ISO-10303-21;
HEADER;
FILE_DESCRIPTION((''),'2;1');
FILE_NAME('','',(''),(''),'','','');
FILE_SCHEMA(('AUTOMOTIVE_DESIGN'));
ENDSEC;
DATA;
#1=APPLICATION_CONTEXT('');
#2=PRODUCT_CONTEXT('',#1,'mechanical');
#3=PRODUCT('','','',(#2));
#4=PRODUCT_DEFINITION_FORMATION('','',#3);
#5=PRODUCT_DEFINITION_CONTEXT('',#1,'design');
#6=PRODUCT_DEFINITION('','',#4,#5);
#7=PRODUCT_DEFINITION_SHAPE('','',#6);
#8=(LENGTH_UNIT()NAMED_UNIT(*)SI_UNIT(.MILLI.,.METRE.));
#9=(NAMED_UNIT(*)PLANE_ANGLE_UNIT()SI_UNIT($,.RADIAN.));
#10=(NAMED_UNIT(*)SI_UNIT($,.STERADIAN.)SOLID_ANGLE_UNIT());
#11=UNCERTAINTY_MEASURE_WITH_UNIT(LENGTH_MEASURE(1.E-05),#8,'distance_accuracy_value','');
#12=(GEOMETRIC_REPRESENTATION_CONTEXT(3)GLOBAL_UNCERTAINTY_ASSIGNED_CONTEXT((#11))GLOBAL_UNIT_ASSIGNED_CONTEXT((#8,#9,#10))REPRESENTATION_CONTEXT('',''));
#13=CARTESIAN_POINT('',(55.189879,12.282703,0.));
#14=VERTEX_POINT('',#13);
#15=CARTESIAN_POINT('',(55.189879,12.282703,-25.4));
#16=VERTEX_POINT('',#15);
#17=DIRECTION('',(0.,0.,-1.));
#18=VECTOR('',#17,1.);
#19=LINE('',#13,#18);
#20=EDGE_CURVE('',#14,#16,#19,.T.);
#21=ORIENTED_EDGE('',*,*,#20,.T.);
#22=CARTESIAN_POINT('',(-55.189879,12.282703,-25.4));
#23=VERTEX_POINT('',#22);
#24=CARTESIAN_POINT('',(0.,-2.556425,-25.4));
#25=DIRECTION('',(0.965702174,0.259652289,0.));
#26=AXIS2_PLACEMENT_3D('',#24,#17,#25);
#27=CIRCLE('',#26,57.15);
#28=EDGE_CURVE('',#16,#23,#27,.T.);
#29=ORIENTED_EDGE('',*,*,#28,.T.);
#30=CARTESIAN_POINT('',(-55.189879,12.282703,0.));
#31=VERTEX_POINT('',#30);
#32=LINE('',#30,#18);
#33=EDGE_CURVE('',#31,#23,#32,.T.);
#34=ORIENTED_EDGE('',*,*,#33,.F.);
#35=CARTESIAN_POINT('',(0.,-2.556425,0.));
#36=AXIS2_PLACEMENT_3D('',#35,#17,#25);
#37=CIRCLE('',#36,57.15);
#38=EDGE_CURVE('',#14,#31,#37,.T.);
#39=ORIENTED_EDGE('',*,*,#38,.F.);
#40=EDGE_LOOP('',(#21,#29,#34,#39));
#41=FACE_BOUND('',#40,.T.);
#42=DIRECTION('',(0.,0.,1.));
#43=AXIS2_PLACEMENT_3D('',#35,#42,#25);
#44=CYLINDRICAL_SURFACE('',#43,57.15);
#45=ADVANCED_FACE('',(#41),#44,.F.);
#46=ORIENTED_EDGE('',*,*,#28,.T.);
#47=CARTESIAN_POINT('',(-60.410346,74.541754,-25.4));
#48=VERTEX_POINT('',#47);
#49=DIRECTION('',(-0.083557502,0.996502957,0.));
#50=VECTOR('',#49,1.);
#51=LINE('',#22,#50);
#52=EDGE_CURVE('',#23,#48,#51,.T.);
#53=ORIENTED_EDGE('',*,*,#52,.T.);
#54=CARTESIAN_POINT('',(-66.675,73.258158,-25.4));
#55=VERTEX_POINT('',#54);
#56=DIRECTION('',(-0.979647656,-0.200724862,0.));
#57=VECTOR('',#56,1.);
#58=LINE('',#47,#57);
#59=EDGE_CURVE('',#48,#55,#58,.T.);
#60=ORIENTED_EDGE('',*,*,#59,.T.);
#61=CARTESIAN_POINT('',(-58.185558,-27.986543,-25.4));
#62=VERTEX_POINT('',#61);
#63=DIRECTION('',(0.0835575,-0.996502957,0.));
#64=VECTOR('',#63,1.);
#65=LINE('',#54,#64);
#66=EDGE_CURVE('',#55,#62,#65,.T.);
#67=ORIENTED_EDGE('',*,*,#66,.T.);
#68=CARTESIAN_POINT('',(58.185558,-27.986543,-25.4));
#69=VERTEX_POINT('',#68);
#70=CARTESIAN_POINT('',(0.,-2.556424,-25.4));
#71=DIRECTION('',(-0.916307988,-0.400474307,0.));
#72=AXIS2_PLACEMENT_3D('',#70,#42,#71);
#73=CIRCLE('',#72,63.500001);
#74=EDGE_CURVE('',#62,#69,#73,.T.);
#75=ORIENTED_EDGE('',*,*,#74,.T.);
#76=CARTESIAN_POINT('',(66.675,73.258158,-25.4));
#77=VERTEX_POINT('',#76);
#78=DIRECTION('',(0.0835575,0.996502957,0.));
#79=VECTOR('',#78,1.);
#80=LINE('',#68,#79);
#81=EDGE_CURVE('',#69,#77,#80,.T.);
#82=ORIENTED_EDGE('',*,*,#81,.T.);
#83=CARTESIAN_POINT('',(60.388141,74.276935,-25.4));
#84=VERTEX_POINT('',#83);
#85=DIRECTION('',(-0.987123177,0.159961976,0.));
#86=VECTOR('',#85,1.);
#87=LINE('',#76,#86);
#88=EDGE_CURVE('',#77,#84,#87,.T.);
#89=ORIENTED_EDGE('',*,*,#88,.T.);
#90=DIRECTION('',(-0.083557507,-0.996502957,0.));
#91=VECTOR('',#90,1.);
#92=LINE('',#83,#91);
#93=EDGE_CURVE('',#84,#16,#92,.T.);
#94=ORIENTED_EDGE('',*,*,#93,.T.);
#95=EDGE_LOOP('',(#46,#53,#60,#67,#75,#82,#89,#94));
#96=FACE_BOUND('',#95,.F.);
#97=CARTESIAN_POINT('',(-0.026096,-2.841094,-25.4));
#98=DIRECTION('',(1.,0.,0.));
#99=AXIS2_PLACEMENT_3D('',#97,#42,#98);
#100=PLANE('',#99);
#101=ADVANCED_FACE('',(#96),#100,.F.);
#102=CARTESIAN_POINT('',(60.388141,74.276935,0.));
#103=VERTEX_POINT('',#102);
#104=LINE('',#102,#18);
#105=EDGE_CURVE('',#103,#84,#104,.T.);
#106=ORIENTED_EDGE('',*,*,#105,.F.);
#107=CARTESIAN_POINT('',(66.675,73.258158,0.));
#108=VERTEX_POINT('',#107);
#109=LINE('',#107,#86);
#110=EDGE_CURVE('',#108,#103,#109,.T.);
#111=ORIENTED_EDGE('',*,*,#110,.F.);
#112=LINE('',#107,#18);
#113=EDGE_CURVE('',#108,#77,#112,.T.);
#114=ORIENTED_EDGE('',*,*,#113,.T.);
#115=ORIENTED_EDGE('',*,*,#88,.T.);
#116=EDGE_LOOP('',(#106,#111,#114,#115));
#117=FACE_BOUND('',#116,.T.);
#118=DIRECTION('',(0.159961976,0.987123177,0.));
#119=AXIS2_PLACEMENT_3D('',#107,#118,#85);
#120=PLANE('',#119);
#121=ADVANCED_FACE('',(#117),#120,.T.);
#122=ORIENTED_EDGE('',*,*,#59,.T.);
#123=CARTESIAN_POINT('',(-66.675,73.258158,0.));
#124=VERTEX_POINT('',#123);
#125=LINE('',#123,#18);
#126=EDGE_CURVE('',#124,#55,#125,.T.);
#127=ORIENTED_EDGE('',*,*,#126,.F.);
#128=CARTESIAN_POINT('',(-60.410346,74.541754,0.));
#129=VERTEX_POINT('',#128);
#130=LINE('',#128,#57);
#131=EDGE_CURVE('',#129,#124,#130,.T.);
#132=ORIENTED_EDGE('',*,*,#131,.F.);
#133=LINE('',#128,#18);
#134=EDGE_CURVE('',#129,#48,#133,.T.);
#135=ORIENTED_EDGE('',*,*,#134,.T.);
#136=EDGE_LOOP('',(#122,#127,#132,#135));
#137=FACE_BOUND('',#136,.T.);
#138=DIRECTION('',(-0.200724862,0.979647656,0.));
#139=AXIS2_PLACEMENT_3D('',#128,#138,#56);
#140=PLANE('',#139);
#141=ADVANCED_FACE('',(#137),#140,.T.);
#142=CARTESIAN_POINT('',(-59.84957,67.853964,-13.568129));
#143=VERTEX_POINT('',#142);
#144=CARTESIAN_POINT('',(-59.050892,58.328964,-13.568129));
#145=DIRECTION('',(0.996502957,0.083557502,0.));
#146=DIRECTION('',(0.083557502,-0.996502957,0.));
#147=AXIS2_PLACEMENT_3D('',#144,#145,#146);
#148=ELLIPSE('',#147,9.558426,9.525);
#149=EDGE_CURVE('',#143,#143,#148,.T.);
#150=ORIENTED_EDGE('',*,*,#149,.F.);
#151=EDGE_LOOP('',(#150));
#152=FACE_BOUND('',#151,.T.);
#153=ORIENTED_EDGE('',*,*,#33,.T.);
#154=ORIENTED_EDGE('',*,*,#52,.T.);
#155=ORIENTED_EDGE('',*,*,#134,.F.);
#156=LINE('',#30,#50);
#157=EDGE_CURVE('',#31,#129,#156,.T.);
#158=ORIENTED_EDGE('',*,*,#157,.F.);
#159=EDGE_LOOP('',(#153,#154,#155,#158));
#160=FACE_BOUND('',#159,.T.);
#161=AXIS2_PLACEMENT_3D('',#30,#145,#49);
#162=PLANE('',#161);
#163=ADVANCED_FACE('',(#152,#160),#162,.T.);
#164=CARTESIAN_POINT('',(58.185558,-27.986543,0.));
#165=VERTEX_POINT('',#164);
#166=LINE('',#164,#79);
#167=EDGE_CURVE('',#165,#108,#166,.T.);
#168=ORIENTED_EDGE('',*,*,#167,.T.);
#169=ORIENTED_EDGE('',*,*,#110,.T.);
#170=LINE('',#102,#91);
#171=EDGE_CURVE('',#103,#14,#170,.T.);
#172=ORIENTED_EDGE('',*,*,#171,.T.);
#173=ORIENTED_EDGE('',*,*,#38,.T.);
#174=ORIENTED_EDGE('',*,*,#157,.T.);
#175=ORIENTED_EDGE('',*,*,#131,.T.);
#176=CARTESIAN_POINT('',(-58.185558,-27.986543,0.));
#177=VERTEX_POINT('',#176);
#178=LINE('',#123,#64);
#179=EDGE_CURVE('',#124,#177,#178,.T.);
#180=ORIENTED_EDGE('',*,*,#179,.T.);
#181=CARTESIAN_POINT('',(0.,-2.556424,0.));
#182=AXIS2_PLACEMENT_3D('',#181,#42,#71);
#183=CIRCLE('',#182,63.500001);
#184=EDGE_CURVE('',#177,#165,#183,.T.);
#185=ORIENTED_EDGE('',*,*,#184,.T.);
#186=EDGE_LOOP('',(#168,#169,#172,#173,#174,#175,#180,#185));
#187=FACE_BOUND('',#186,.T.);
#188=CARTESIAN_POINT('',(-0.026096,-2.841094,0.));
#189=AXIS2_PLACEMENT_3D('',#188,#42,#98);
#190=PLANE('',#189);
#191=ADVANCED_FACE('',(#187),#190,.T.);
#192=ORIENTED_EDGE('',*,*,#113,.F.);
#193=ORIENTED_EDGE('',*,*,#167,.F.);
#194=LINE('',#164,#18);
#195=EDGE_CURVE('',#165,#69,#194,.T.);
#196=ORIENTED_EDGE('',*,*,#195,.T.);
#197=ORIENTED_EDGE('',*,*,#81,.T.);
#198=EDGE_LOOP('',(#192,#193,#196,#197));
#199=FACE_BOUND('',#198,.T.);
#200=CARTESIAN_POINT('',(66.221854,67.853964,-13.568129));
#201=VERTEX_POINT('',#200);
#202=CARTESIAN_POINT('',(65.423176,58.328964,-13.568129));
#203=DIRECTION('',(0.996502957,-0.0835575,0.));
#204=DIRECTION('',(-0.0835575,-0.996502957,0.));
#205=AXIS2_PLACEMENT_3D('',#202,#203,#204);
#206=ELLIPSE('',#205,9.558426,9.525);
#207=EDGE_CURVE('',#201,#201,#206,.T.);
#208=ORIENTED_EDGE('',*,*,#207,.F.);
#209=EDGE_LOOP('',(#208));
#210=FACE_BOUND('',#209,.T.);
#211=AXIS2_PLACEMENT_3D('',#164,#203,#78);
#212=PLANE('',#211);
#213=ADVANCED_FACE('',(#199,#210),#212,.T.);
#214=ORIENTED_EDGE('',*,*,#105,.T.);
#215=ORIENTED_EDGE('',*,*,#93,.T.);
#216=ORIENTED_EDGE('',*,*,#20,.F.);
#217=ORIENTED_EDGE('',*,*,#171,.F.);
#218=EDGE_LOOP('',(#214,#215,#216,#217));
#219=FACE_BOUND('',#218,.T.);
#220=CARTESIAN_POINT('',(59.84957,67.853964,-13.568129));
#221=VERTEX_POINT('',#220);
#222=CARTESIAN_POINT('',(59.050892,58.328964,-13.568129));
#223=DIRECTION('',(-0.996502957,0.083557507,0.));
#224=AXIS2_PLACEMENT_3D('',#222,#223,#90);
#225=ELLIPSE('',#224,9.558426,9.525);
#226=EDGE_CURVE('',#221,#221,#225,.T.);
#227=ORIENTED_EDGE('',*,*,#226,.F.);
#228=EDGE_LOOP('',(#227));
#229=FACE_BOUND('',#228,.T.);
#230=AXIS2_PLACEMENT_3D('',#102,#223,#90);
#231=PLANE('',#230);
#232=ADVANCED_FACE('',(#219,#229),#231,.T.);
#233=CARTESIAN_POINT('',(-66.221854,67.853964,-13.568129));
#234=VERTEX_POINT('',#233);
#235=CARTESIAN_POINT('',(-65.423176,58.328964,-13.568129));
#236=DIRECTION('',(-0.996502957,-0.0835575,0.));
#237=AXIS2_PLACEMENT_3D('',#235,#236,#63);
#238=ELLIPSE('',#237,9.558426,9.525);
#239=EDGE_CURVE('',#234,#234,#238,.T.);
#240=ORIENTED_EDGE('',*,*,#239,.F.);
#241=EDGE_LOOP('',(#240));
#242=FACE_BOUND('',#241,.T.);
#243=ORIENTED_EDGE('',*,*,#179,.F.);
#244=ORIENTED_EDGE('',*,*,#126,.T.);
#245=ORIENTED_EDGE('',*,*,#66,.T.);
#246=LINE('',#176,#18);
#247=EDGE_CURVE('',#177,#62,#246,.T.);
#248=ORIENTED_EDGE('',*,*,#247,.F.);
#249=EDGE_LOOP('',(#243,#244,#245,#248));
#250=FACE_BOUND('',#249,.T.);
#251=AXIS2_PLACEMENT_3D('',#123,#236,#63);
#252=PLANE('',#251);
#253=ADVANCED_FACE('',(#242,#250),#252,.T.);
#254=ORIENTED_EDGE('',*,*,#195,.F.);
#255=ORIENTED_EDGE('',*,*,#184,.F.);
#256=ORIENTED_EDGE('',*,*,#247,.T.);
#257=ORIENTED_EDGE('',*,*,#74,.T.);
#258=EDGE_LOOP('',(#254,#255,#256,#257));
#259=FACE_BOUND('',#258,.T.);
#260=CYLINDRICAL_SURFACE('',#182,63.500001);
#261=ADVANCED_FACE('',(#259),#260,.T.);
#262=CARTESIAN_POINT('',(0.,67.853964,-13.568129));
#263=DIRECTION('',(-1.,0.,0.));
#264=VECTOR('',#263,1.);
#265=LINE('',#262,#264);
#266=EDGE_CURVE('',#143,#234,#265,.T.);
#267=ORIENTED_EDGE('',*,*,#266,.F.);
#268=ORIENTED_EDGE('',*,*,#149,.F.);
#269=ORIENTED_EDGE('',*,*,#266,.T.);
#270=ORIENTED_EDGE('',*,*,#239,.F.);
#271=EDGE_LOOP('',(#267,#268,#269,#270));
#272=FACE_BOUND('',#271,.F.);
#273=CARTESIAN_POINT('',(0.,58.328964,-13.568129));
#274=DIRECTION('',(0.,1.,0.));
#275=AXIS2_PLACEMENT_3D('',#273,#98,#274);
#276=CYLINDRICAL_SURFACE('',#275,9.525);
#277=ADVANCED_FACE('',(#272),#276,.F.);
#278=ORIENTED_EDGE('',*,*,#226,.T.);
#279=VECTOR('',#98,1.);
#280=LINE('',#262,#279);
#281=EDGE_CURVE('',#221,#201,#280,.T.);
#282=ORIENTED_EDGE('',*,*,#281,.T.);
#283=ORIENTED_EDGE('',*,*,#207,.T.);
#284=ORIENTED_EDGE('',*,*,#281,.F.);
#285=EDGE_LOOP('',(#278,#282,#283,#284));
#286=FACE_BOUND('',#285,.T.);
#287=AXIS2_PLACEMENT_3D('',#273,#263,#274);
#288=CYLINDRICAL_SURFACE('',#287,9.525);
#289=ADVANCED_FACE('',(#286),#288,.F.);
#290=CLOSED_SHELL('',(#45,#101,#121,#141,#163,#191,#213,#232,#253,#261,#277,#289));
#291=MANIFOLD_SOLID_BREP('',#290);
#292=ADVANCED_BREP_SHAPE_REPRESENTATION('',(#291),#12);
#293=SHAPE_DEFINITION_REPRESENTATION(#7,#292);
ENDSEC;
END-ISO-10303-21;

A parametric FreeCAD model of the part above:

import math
import FreeCAD as App
import Part
import Sketcher
Q = App.Units.Quantity

doc = App.newDocument("Part")
params = doc.addObject("Spreadsheet::Sheet", "Params")
for row, (alias, value) in enumerate([
    ("sketch1_radius", "2.5 in"),
    ("sketch1_radius2", "2.25 in"),
    ("sketch1_length", "4 in"),
    ("pad1_length", "1 in"),
    ("sketch2_diameter", "0.75 in"),
    ("sketch3_diameter", "0.75 in"),
], start=1):
    params.set(f"A{row}", alias)
    params.set(f"B{row}", "=" + value)
    params.setAlias(f"B{row}", alias)

body = doc.addObject("PartDesign::Body", "Body")

sketch1 = body.newObject("Sketcher::SketchObject", "Sketch")
sketch1.AttachmentSupport = (doc.getObject("XY_Plane"), [""])
sketch1.MapMode = "FlatFace"
sketch1.addGeometry(Part.LineSegment(App.Vector(-60, 75, 0), App.Vector(-67, 73, 0)), False)
sketch1.addGeometry(Part.LineSegment(App.Vector(-67, 73, 0), App.Vector(-58, -28, 0)), False)
sketch1.addGeometry(Part.ArcOfCircle(Part.Circle(App.Vector(0, -3, 0), App.Vector(0, 0, 1), 64), math.radians(-156), math.radians(-24)), False)
sketch1.addGeometry(Part.LineSegment(App.Vector(58, -28, 0), App.Vector(67, 73, 0)), False)
sketch1.addGeometry(Part.LineSegment(App.Vector(67, 73, 0), App.Vector(60, 74, 0)), False)
sketch1.addGeometry(Part.LineSegment(App.Vector(60, 74, 0), App.Vector(55, 12, 0)), False)
sketch1.addGeometry(Part.ArcOfCircle(Part.Circle(App.Vector(0, -3, 0), App.Vector(0, 0, 1), 57), math.radians(165), math.radians(375)), False)
sketch1.addGeometry(Part.LineSegment(App.Vector(-55, 12, 0), App.Vector(-60, 75, 0)), False)
sketch1.addConstraint(Sketcher.Constraint("Coincident", 0, 2, 1, 1))
sketch1.addConstraint(Sketcher.Constraint("Coincident", 1, 2, 2, 1))
sketch1.addConstraint(Sketcher.Constraint("Coincident", 2, 2, 3, 1))
sketch1.addConstraint(Sketcher.Constraint("Coincident", 3, 2, 4, 1))
sketch1.addConstraint(Sketcher.Constraint("Coincident", 4, 2, 5, 1))
sketch1.addConstraint(Sketcher.Constraint("Coincident", 5, 2, 6, 2))
sketch1.addConstraint(Sketcher.Constraint("Coincident", 6, 1, 7, 1))
sketch1.addConstraint(Sketcher.Constraint("Coincident", 7, 2, 0, 1))
sketch1.addConstraint(Sketcher.Constraint("Coincident", 6, 3, 2, 3))
sketch1.addConstraint(Sketcher.Constraint("Symmetric", 1, 2, 2, 2, -2))
sketch1.addConstraint(Sketcher.Constraint("Symmetric", 0, 2, 3, 2, -2))
sketch1.addConstraint(Sketcher.Constraint("Parallel", 3, 5))
sketch1.addConstraint(Sketcher.Constraint("Parallel", 1, 7))
sketch1.addConstraint(Sketcher.Constraint("Horizontal", 5, 2, 6, 1))
sketch1.addConstraint(Sketcher.Constraint("Radius", 2, Q("2.5 in")))
sketch1.addConstraint(Sketcher.Constraint("Radius", 6, Q("2.25 in")))
sketch1.addConstraint(Sketcher.Constraint("Distance", 1, Q("4 in")))
sketch1.addConstraint(Sketcher.Constraint("DistanceX", 0, 2, 3, 2, Q("5.25 in")))
sketch1.addConstraint(Sketcher.Constraint("DistanceY", 1, 2, 0, 2, 101.244701))
sketch1.addConstraint(Sketcher.Constraint("Distance", 4, 6.36887))
sketch1.addConstraint(Sketcher.Constraint("Distance", 5, 62.211789))
sketch1.addConstraint(Sketcher.Constraint("DistanceY", 6, 1, 7, 2, 62.259051))
sketch1.addConstraint(Sketcher.Constraint("DistanceY", 2, 3, -1, 1, 2.556424))
sketch1.setExpression("Constraints[14]", "Params.sketch1_radius")
sketch1.setExpression("Constraints[15]", "Params.sketch1_radius2")
sketch1.setExpression("Constraints[16]", "Params.sketch1_length")
pad1 = body.newObject("PartDesign::Pad", "Pad")
pad1.Profile = sketch1
pad1.setExpression("Length", "Params.pad1_length")
pad1.Reversed = True

sketch2 = body.newObject("Sketcher::SketchObject", "Sketch001")
sketch2.AttachmentSupport = (doc.getObject("YZ_Plane"), [""])
sketch2.MapMode = "FlatFace"
sketch2.addGeometry(Part.Circle(App.Vector(58, -14, 0), App.Vector(0, 0, 1), 10), False)
sketch2.addConstraint(Sketcher.Constraint("Diameter", 0, Q("0.75 in")))
sketch2.addConstraint(Sketcher.Constraint("DistanceY", 0, 3, -1, 1, 13.568129))
sketch2.addConstraint(Sketcher.Constraint("DistanceX", -1, 1, 0, 3, 58.328964))
sketch2.setExpression("Constraints[0]", "Params.sketch2_diameter")
pocket1 = body.newObject("PartDesign::Pocket", "Pocket")
pocket1.Profile = sketch2
pocket1.Type = "ThroughAll"
pocket1.Reversed = True

sketch3 = body.newObject("Sketcher::SketchObject", "Sketch002")
sketch3.AttachmentSupport = (doc.getObject("YZ_Plane"), [""])
sketch3.MapMode = "FlatFace"
sketch3.addGeometry(Part.Circle(App.Vector(58, -14, 0), App.Vector(0, 0, 1), 10), False)
sketch3.addConstraint(Sketcher.Constraint("Diameter", 0, Q("0.75 in")))
sketch3.addConstraint(Sketcher.Constraint("DistanceY", 0, 3, -1, 1, 13.568129))
sketch3.addConstraint(Sketcher.Constraint("DistanceX", -1, 1, 0, 3, 58.328964))
sketch3.setExpression("Constraints[0]", "Params.sketch3_diameter")
pocket2 = body.newObject("PartDesign::Pocket", "Pocket001")
pocket2.Profile = sketch3
pocket2.Type = "ThroughAll"

doc.recompute()
